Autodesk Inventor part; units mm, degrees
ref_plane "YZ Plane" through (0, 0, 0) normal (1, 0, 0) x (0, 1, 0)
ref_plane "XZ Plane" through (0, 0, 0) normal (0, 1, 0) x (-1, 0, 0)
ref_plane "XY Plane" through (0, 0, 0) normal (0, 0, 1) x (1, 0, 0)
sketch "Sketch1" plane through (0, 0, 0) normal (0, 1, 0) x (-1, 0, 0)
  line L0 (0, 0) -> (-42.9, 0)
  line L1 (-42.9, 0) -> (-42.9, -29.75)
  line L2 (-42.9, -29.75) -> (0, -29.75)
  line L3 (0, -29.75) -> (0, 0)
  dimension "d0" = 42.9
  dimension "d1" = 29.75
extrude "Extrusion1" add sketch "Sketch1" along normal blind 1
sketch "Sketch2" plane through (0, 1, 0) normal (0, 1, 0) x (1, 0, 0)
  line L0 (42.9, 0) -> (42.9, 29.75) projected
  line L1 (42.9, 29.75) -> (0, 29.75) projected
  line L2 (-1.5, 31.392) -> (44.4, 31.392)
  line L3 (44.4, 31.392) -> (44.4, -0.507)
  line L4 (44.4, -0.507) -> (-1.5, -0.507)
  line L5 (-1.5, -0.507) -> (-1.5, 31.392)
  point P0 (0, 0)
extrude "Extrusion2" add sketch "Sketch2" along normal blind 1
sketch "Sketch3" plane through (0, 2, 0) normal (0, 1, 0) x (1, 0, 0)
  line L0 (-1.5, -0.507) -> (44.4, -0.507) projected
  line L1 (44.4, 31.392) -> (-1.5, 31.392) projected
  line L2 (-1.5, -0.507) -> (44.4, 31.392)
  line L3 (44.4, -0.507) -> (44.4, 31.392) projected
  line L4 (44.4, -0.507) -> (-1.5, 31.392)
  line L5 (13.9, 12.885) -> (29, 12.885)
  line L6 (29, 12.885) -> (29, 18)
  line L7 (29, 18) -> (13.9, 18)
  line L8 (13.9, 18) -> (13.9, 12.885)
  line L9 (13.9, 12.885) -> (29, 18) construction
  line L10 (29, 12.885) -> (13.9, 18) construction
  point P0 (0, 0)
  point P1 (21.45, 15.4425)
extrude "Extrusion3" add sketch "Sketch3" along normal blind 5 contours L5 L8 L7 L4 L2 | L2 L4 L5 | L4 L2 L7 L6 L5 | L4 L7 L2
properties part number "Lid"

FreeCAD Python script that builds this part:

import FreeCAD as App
import Part
import Sketcher
Q = App.Units.Quantity

doc = App.newDocument("Part")
body = doc.addObject("PartDesign::Body", "Body")

# Sketch on XZ plane
sketch1 = body.newObject("Sketcher::SketchObject", "Sketch")
sketch1.AttachmentSupport = (doc.getObject("XZ_Plane"), [""])
sketch1.MapMode = "FlatFace"
sketch1.addGeometry([
    Part.LineSegment(App.Vector(0, -30, 0), App.Vector(0, 0, 0)),
    Part.LineSegment(App.Vector(0, 0, 0), App.Vector(43, 0, 0)),
    Part.LineSegment(App.Vector(43, 0, 0), App.Vector(43, -30, 0)),
    Part.LineSegment(App.Vector(43, -30, 0), App.Vector(0, -30, 0)),
], False)
sketch1.addConstraint([
    Sketcher.Constraint("Coincident", 0, 2, 1, 1),
    Sketcher.Constraint("Coincident", 1, 2, 2, 1),
    Sketcher.Constraint("Coincident", 2, 2, 3, 1),
    Sketcher.Constraint("Coincident", 3, 2, 0, 1),
    Sketcher.Constraint("Vertical", 0),
    Sketcher.Constraint("Horizontal", 1),
    Sketcher.Constraint("Vertical", 2),
    Sketcher.Constraint("Horizontal", 3),
    Sketcher.Constraint("Coincident", 0, 2, -1, 1),
    Sketcher.Constraint("DistanceX", 1, 1, 1, 2, Q("42.9 mm")),
    Sketcher.Constraint("DistanceY", 0, 1, 0, 2, Q("29.75 mm")),
])
pad1 = body.newObject("PartDesign::Pad", "Pad")
pad1.Profile = sketch1
pad1.Length = 1
pad1.Reversed = True

# Sketch on XZ plane
sketch2 = body.newObject("Sketcher::SketchObject", "Sketch001")
sketch2.AttachmentSupport = (doc.getObject("XZ_Plane"), [""])
sketch2.MapMode = "FlatFace"
sketch2.AttachmentOffset = App.Placement(App.Vector(0, 0, -1), App.Rotation())
sketch2.addGeometry([
    Part.LineSegment(App.Vector(44, -31, 0), App.Vector(-2, -31, 0)),
    Part.LineSegment(App.Vector(-2, -31, 0), App.Vector(-2, 1, 0)),
    Part.LineSegment(App.Vector(-2, 1, 0), App.Vector(44, 1, 0)),
    Part.LineSegment(App.Vector(44, 1, 0), App.Vector(44, -31, 0)),
], False)
sketch2.addConstraint([
    Sketcher.Constraint("Coincident", 0, 2, 1, 1),
    Sketcher.Constraint("Coincident", 1, 2, 2, 1),
    Sketcher.Constraint("Coincident", 2, 2, 3, 1),
    Sketcher.Constraint("Coincident", 3, 2, 0, 1),
    Sketcher.Constraint("Horizontal", 0),
    Sketcher.Constraint("Vertical", 1),
    Sketcher.Constraint("Horizontal", 2),
    Sketcher.Constraint("Vertical", 3),
    Sketcher.Constraint("DistanceX", 0, 2, 0, 1, Q("45.9 mm")),
    Sketcher.Constraint("DistanceX", 0, 2, -1, 1, Q("1.5 mm")),
    Sketcher.Constraint("DistanceY", 1, 1, 1, 2, Q("31.899 mm")),
    Sketcher.Constraint("DistanceY", 0, 2, -1, 1, Q("31.392 mm")),
])
pad2 = body.newObject("PartDesign::Pad", "Pad001")
pad2.Profile = sketch2
pad2.Length = 1
pad2.Reversed = True

# Sketch on XZ plane
sketch3 = body.newObject("Sketcher::SketchObject", "Sketch002")
sketch3.AttachmentSupport = (doc.getObject("XZ_Plane"), [""])
sketch3.MapMode = "FlatFace"
sketch3.AttachmentOffset = App.Placement(App.Vector(0, 0, -2), App.Rotation())
sketch3.addGeometry([
    Part.LineSegment(App.Vector(14, -13, 0), App.Vector(29, -13, 0)),
    Part.LineSegment(App.Vector(29, -13, 0), App.Vector(29, -18, 0)),
    Part.LineSegment(App.Vector(29, -18, 0), App.Vector(14, -18, 0)),
    Part.LineSegment(App.Vector(14, -18, 0), App.Vector(14, -13, 0)),
], False)
sketch3.addConstraint([
    Sketcher.Constraint("Coincident", 0, 2, 1, 1),
    Sketcher.Constraint("Coincident", 1, 2, 2, 1),
    Sketcher.Constraint("Coincident", 2, 2, 3, 1),
    Sketcher.Constraint("Coincident", 3, 2, 0, 1),
    Sketcher.Constraint("Horizontal", 0),
    Sketcher.Constraint("Vertical", 1),
    Sketcher.Constraint("Horizontal", 2),
    Sketcher.Constraint("Vertical", 3),
    Sketcher.Constraint("DistanceX", 0, 1, 0, 2, Q("15.1 mm")),
    Sketcher.Constraint("DistanceX", -1, 1, 0, 2, Q("29 mm")),
    Sketcher.Constraint("DistanceY", 1, 2, -1, 1, Q("18 mm")),
    Sketcher.Constraint("DistanceY", 1, 2, 1, 1, Q("5.115 mm")),
])
pad3 = body.newObject("PartDesign::Pad", "Pad002")
pad3.Profile = sketch3
pad3.Length = 5
pad3.Reversed = True

doc.recompute()
